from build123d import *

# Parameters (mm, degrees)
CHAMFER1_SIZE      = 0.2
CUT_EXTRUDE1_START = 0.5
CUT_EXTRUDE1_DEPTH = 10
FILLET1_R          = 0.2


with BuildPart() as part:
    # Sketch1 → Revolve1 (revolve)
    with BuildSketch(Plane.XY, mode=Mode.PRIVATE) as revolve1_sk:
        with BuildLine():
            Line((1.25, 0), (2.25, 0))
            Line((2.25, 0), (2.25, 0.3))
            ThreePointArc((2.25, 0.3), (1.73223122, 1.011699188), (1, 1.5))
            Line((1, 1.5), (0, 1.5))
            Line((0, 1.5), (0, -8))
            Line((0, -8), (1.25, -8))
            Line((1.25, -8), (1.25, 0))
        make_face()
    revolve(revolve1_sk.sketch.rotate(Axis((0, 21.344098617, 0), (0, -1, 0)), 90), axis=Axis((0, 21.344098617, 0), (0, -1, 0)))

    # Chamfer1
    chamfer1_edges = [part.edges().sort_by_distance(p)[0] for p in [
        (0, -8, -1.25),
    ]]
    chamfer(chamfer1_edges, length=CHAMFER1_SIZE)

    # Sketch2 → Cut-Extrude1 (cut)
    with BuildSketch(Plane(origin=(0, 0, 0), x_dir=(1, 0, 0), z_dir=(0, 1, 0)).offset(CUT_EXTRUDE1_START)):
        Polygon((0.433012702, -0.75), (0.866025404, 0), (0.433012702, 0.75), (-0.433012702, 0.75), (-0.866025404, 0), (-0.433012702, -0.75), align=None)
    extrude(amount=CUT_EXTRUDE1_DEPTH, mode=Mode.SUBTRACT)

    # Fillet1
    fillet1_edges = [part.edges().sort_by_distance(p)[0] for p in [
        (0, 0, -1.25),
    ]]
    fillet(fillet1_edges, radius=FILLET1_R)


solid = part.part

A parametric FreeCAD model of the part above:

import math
import FreeCAD as App
import Part
import Sketcher
from FreeCAD import Vector
Q = App.Units.Quantity


def edges_at(feature, points):
    """Names of the edges that pass closest to the given points."""
    edges = feature.Shape.Edges
    near = lambda p: min(range(len(edges)), key=lambda i: edges[i].distToShape(Part.Vertex(*p))[0])
    return sorted({f"Edge{near(p) + 1}" for p in points})


def add_polygon(sketch, points):
    """Adds a closed chain of lines whose ends are joined by coincident constraints."""
    first, n = sketch.GeometryCount, len(points)
    for a, b in zip(points, points[1:] + points[:1]):
        sketch.addGeometry(Part.LineSegment(App.Vector(*a, 0), App.Vector(*b, 0)), False)
    for i in range(n):
        sketch.addConstraint(Sketcher.Constraint("Coincident", first + i, 2, first + (i + 1) % n, 1))

doc = App.newDocument("Part")
params = doc.addObject("Spreadsheet::Sheet", "Params")
for row, (alias, value) in enumerate([
    ("sketch1_width", "1 mm"),
    ("sketch1_height", "8 mm"),
    ("sketch1_height2", "0.3 mm"),
    ("sketch1_height3", "9.5 mm"),
    ("sketch1_width2", "1.25 mm"),
    ("revolution_angle", "360 deg"),
    ("chamfer_size", "0.2 mm"),
    ("pocket1_length", "10 mm"),
    ("fillet_radius", "0.2 mm"),
], start=1):
    params.set(f"A{row}", alias)
    params.set(f"B{row}", "=" + value)
    params.setAlias(f"B{row}", alias)

body = doc.addObject("PartDesign::Body", "Body")

sketch1 = doc.addObject("Sketcher::SketchObject", "Sketch")
body.addObject(sketch1)
sketch1.AttachmentSupport = (doc.XY_Plane, [""])
sketch1.MapMode = "FlatFace"
sketch1.addGeometry([
    Part.LineSegment(Vector(1.25, 0, 0), Vector(2.25, 0, 0)),
    Part.LineSegment(Vector(2.25, 0, 0), Vector(2.25, 0.3, 0)),
    Part.ArcOfCircle(Part.Circle(Vector(0, -0.79, 0), Vector(0, 0, 1), 2.5), math.radians(26), math.radians(66)),
    Part.LineSegment(Vector(1, 1.5, 0), Vector(0, 1.5, 0)),
    Part.LineSegment(Vector(0, 1.5, 0), Vector(0, -8, 0)),
    Part.LineSegment(Vector(0, -8, 0), Vector(1.25, -8, 0)),
    Part.LineSegment(Vector(1.25, -8, 0), Vector(1.25, 0, 0)),
], False)
sketch1.addConstraint([
    Sketcher.Constraint("Coincident", 0, 2, 1, 1),
    Sketcher.Constraint("Coincident", 1, 2, 2, 1),
    Sketcher.Constraint("Coincident", 2, 2, 3, 1),
    Sketcher.Constraint("Coincident", 3, 2, 4, 1),
    Sketcher.Constraint("Coincident", 4, 2, 5, 1),
    Sketcher.Constraint("Coincident", 5, 2, 6, 1),
    Sketcher.Constraint("Coincident", 6, 2, 0, 1),
    Sketcher.Constraint("Horizontal", 0),
    Sketcher.Constraint("Vertical", 1),
    Sketcher.Constraint("Horizontal", 3),
    Sketcher.Constraint("Vertical", 4),
    Sketcher.Constraint("Horizontal", 5),
    Sketcher.Constraint("Vertical", 6),
    Sketcher.Constraint("PointOnObject", 2, 3, -2),
    Sketcher.Constraint("PointOnObject", 0, 2, -1),
    Sketcher.Constraint("PointOnObject", 3, 2, -2),
    Sketcher.Constraint("Equal", 0, 3),
    Sketcher.Constraint("DistanceX", 0, 1, 0, 2, 1.0),
    Sketcher.Constraint("DistanceY", 6, 1, 6, 2, 8.0),
    Sketcher.Constraint("DistanceY", 1, 1, 1, 2, 0.3),
    Sketcher.Constraint("DistanceY", 4, 2, 4, 1, 9.5),
    Sketcher.Constraint("DistanceX", 5, 1, 5, 2, 1.25),
])
sketch1.setExpression("Constraints[17]", "Params.sketch1_width")
sketch1.setExpression("Constraints[18]", "Params.sketch1_height")
sketch1.setExpression("Constraints[19]", "Params.sketch1_height2")
sketch1.setExpression("Constraints[20]", "Params.sketch1_height3")
sketch1.setExpression("Constraints[21]", "Params.sketch1_width2")
revolution = doc.addObject("PartDesign::Revolution", "Revolution")
body.addObject(revolution)
revolution.Profile = sketch1
revolution.ReferenceAxis = (sketch1, ["V_Axis"])
revolution.setExpression("Angle", "Params.revolution_angle")
doc.recompute()

chamfer = doc.addObject("PartDesign::Chamfer", "Chamfer")
body.addObject(chamfer)
chamfer.Base = (revolution, edges_at(revolution, [(0, -8, -1.25)]))
chamfer.setExpression("Size", "Params.chamfer_size")

sketch2 = doc.addObject("Sketcher::SketchObject", "Sketch001")
body.addObject(sketch2)
sketch2.AttachmentSupport = (doc.XZ_Plane, [""])
sketch2.MapMode = "FlatFace"
sketch2.AttachmentOffset = App.Placement(Vector(0, 0, -0.5), App.Rotation())
add_polygon(sketch2, [(0.4, 0.8), (0.9, 0), (0.4, -0.8), (-0.4, -0.8), (-0.9, 0), (-0.4, 0.8)])
sketch2.addConstraint([
    Sketcher.Constraint("Horizontal", 2),
    Sketcher.Constraint("Horizontal", 5),
    Sketcher.Constraint("Symmetric", 0, 2, 3, 2, -1, 1),
    Sketcher.Constraint("Symmetric", 1, 2, 4, 2, -1, 1),
    Sketcher.Constraint("PointOnObject", 0, 2, -1),
    Sketcher.Constraint("Parallel", 0, 3),
    Sketcher.Constraint("Vertical", 2, 2, 4, 2),
    Sketcher.Constraint("Angle", 0, Q("-60 deg")),
    Sketcher.Constraint("DistanceY", 2, 2, 4, 2, 1.5),
    Sketcher.Constraint("DistanceX", 2, 2, 2, 1, 0.866025),
])
pocket1 = doc.addObject("PartDesign::Pocket", "Pocket")
body.addObject(pocket1)
pocket1.Profile = sketch2
pocket1.setExpression("Length", "Params.pocket1_length")
doc.recompute()

fillet = doc.addObject("PartDesign::Fillet", "Fillet")
body.addObject(fillet)
fillet.Base = (pocket1, edges_at(pocket1, [(0, 0, -1.25)]))
fillet.setExpression("Radius", "Params.fillet_radius")

doc.recompute()
